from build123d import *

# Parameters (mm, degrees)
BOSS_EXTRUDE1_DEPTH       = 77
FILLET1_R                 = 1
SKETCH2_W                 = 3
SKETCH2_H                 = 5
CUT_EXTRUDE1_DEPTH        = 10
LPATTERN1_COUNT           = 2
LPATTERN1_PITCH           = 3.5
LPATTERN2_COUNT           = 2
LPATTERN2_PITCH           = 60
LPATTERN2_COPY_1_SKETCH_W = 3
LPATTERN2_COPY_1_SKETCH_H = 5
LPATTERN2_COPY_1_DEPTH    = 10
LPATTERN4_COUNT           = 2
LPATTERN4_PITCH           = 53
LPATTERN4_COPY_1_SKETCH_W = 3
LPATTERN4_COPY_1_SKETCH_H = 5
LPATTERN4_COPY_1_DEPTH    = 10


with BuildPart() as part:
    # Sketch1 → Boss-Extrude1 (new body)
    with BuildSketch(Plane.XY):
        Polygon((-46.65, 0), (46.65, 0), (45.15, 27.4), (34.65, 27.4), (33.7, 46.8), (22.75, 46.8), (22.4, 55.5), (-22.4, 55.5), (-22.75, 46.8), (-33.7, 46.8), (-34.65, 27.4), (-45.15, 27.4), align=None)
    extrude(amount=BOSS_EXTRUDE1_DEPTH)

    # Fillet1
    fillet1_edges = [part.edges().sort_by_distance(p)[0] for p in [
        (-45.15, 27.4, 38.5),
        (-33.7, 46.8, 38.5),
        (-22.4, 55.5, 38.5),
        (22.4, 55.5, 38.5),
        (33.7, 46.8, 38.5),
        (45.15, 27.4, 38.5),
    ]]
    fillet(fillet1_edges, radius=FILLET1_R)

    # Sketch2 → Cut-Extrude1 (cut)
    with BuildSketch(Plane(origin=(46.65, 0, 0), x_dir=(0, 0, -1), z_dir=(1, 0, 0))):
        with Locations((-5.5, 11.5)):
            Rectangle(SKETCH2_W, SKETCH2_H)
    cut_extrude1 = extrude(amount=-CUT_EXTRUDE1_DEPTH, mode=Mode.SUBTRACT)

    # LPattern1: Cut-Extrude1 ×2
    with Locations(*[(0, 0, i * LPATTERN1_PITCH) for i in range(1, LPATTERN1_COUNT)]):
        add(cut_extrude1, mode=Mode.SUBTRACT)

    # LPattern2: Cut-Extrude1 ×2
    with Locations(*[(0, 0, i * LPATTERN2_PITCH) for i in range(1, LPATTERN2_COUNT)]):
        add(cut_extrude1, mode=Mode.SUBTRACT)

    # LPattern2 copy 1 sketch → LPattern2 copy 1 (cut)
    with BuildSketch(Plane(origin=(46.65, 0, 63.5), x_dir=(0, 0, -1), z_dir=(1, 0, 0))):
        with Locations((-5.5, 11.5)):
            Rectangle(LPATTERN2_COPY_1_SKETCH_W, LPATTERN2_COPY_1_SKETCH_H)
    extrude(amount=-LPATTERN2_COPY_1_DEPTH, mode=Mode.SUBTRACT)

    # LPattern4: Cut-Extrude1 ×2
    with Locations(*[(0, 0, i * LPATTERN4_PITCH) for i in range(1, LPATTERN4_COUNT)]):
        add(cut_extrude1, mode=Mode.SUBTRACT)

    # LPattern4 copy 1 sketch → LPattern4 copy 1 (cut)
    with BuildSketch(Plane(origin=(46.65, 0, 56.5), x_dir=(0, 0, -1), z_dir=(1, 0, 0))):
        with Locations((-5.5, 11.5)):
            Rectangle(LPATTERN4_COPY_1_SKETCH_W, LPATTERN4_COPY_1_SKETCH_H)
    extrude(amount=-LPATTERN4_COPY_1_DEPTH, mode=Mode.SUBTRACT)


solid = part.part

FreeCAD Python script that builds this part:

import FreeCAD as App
import Part
import Sketcher
from FreeCAD import Vector


def edges_at(feature, points):
    """Names of the edges that pass closest to the given points."""
    edges = feature.Shape.Edges
    near = lambda p: min(range(len(edges)), key=lambda i: edges[i].distToShape(Part.Vertex(*p))[0])
    return sorted({f"Edge{near(p) + 1}" for p in points})


def add_polygon(sketch, points):
    """Adds a closed chain of lines whose ends are joined by coincident constraints."""
    first, n = sketch.GeometryCount, len(points)
    for a, b in zip(points, points[1:] + points[:1]):
        sketch.addGeometry(Part.LineSegment(App.Vector(*a, 0), App.Vector(*b, 0)), False)
    for i in range(n):
        sketch.addConstraint(Sketcher.Constraint("Coincident", first + i, 2, first + (i + 1) % n, 1))

doc = App.newDocument("Part")
body = doc.addObject("PartDesign::Body", "Body")

# Sketch on XY plane
sketch1 = body.newObject("Sketcher::SketchObject", "Sketch")
sketch1.AttachmentSupport = (doc.getObject("XY_Plane"), [""])
sketch1.MapMode = "FlatFace"
add_polygon(sketch1, [(-46.65, 0), (46.65, 0), (45.15, 27.4), (34.65, 27.4), (33.7, 46.8), (22.75, 46.8), (22.4, 55.5), (-22.4, 55.5), (-22.75, 46.8), (-33.7, 46.8), (-34.65, 27.4), (-45.15, 27.4)])  # lines 0-11
sketch1.addConstraint([
    Sketcher.Constraint("Horizontal", 0),
    Sketcher.Constraint("Horizontal", 2),
    Sketcher.Constraint("Horizontal", 4),
    Sketcher.Constraint("Horizontal", 6),
    Sketcher.Constraint("Horizontal", 8),
    Sketcher.Constraint("Horizontal", 10),
    Sketcher.Constraint("Symmetric", 0, 2, 11, 2, -1, 1),
    Sketcher.Constraint("Symmetric", 4, 2, 7, 2, -2),
    Sketcher.Constraint("Symmetric", 2, 2, 9, 2, -2),
    Sketcher.Constraint("Equal", 4, 8),
    Sketcher.Constraint("Equal", 2, 10),
    Sketcher.Constraint("Equal", 5, 7),
    Sketcher.Constraint("DistanceX", 0, 1, 0, 2, 93.3),
    Sketcher.Constraint("DistanceX", 2, 2, 2, 1, 10.5),
    Sketcher.Constraint("DistanceX", 6, 2, 6, 1, 44.8),
    Sketcher.Constraint("DistanceX", 2, 2, 0, 2, 12.0),
    Sketcher.Constraint("DistanceX", 4, 2, 4, 1, 10.95),
    Sketcher.Constraint("DistanceY", -1, 1, 1, 2, 27.4),
    Sketcher.Constraint("DistanceX", -1, 1, 3, 2, 33.7),
    Sketcher.Constraint("DistanceY", -1, 1, 3, 2, 46.8),
    Sketcher.Constraint("DistanceY", -1, 1, 5, 2, 55.5),
])
pad1 = body.newObject("PartDesign::Pad", "Pad")
pad1.Profile = sketch1
pad1.Length = 77
doc.recompute()

fillet = body.newObject("PartDesign::Fillet", "Fillet")
fillet.Base = (pad1, edges_at(pad1, [
    (-45.15, 27.4, 38.5),
    (-33.7, 46.8, 38.5),
    (-22.4, 55.5, 38.5),
    (22.4, 55.5, 38.5),
    (33.7, 46.8, 38.5),
    (45.15, 27.4, 38.5),
]))
fillet.Radius = 1

# Sketch on YZ plane
sketch2 = body.newObject("Sketcher::SketchObject", "Sketch001")
sketch2.AttachmentSupport = (doc.getObject("YZ_Plane"), [""])
sketch2.MapMode = "FlatFace"
sketch2.AttachmentOffset = App.Placement(Vector(0, 0, 46.65), App.Rotation())
add_polygon(sketch2, [(14, 7), (9, 7), (9, 4), (14, 4)])  # lines 0-3
sketch2.addConstraint([
    Sketcher.Constraint("Horizontal", 0),
    Sketcher.Constraint("Vertical", 1),
    Sketcher.Constraint("Horizontal", 2),
    Sketcher.Constraint("Vertical", 3),
    Sketcher.Constraint("DistanceX", 0, 2, 0, 1, 5.0),
    Sketcher.Constraint("DistanceY", 1, 2, 1, 1, 3.0),
    Sketcher.Constraint("DistanceX", -1, 1, 0, 2, 9.0),
    Sketcher.Constraint("DistanceY", -1, 1, 0, 2, 7.0),
])
pocket1 = body.newObject("PartDesign::Pocket", "Pocket")
pocket1.Profile = sketch2
pocket1.Length = 10
doc.recompute()

linearpattern = body.newObject("PartDesign::LinearPattern", "LinearPattern")
linearpattern.Originals = [pocket1]
linearpattern.Direction = (doc.getObject("Z_Axis"), [""])
linearpattern.Mode = "offset"
linearpattern.Offset = 3.5
linearpattern.Occurrences = 2
body.Tip = linearpattern
doc.recompute()

linearpattern2 = body.newObject("PartDesign::LinearPattern", "LinearPattern001")
linearpattern2.Originals = [pocket1]
linearpattern2.Direction = (doc.getObject("Z_Axis"), [""])
linearpattern2.Mode = "offset"
linearpattern2.Offset = 60
linearpattern2.Occurrences = 2
body.Tip = linearpattern2

# Sketch on YZ plane
sketch3 = body.newObject("Sketcher::SketchObject", "Sketch002")
sketch3.AttachmentSupport = (doc.getObject("YZ_Plane"), [""])
sketch3.MapMode = "FlatFace"
sketch3.AttachmentOffset = App.Placement(Vector(0, 0, 46.65), App.Rotation())
add_polygon(sketch3, [(14, 70.5), (9, 70.5), (9, 67.5), (14, 67.5)])  # lines 0-3
sketch3.addConstraint([
    Sketcher.Constraint("Horizontal", 0),
    Sketcher.Constraint("Vertical", 1),
    Sketcher.Constraint("Horizontal", 2),
    Sketcher.Constraint("Vertical", 3),
    Sketcher.Constraint("DistanceX", 0, 2, 0, 1, 5.0),
    Sketcher.Constraint("DistanceY", 1, 2, 1, 1, 3.0),
    Sketcher.Constraint("DistanceX", -1, 1, 0, 2, 9.0),
    Sketcher.Constraint("DistanceY", -1, 1, 0, 2, 70.5),
])
pocket2 = body.newObject("PartDesign::Pocket", "Pocket001")
pocket2.Profile = sketch3
pocket2.Length = 10
doc.recompute()

linearpattern3 = body.newObject("PartDesign::LinearPattern", "LinearPattern002")
linearpattern3.Originals = [pocket1]
linearpattern3.Direction = (doc.getObject("Z_Axis"), [""])
linearpattern3.Mode = "offset"
linearpattern3.Offset = 53
linearpattern3.Occurrences = 2
body.Tip = linearpattern3

# Sketch on YZ plane
sketch4 = body.newObject("Sketcher::SketchObject", "Sketch003")
sketch4.AttachmentSupport = (doc.getObject("YZ_Plane"), [""])
sketch4.MapMode = "FlatFace"
sketch4.AttachmentOffset = App.Placement(Vector(0, 0, 46.65), App.Rotation())
add_polygon(sketch4, [(14, 63.5), (9, 63.5), (9, 60.5), (14, 60.5)])  # lines 0-3
sketch4.addConstraint([
    Sketcher.Constraint("Horizontal", 0),
    Sketcher.Constraint("Vertical", 1),
    Sketcher.Constraint("Horizontal", 2),
    Sketcher.Constraint("Vertical", 3),
    Sketcher.Constraint("DistanceX", 0, 2, 0, 1, 5.0),
    Sketcher.Constraint("DistanceY", 1, 2, 1, 1, 3.0),
    Sketcher.Constraint("DistanceX", -1, 1, 0, 2, 9.0),
    Sketcher.Constraint("DistanceY", -1, 1, 0, 2, 63.5),
])
pocket3 = body.newObject("PartDesign::Pocket", "Pocket002")
pocket3.Profile = sketch4
pocket3.Length = 10

doc.recompute()
